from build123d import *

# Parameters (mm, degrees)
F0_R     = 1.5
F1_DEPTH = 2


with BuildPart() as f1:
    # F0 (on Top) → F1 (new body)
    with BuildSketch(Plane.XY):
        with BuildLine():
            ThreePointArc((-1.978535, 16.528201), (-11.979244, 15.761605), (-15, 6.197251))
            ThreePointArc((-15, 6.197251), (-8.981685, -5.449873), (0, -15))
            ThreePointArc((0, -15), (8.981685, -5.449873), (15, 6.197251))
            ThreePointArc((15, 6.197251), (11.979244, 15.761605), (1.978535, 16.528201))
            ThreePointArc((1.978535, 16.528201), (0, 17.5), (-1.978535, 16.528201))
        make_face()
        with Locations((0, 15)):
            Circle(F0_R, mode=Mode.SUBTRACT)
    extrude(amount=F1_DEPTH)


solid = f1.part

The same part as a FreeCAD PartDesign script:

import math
import FreeCAD as App
import Part
import Sketcher

V = App.Vector

doc = App.newDocument("Part")
body = doc.addObject("PartDesign::Body", "Body")

# Sketch on XY plane
sketch1 = body.newObject("Sketcher::SketchObject", "Sketch")
sketch1.AttachmentSupport = (doc.getObject("XY_Plane"), [""])
sketch1.MapMode = "FlatFace"
sketch1.addGeometry(Part.ArcOfCircle(Part.Circle(V(-6.4, 8.7, 0), V(0, 0, 1), 9), math.radians(60), math.radians(197)), False)
sketch1.addGeometry(Part.ArcOfCircle(Part.Circle(V(29.7, 21.9, 0), V(0, 0, 1), 47.3), math.radians(-161), math.radians(-129)), False)
sketch1.addGeometry(Part.ArcOfCircle(Part.Circle(V(-29.7, 21.9, 0), V(0, 0, 1), 47.3), math.radians(-51), math.radians(-19)), False)
sketch1.addGeometry(Part.ArcOfCircle(Part.Circle(V(6.4, 8.7, 0), V(0, 0, 1), 9), math.radians(-17), math.radians(120)), False)
sketch1.addGeometry(Part.ArcOfCircle(Part.Circle(V(0, 15, 0), V(0, 0, 1), 2.5), math.radians(38), math.radians(142)), False)
sketch1.addGeometry(Part.Circle(V(0, 15, 0), V(0, 0, 1), 1.5), False)
sketch1.addConstraint(Sketcher.Constraint("Coincident", 0, 2, 1, 1))
sketch1.addConstraint(Sketcher.Constraint("Coincident", 1, 2, 2, 1))
sketch1.addConstraint(Sketcher.Constraint("Coincident", 2, 2, 3, 1))
sketch1.addConstraint(Sketcher.Constraint("Coincident", 3, 2, 4, 1))
sketch1.addConstraint(Sketcher.Constraint("Coincident", 4, 2, 0, 1))
sketch1.addConstraint(Sketcher.Constraint("Coincident", 5, 3, 4, 3))
sketch1.addConstraint(Sketcher.Constraint("Equal", 1, 2))
sketch1.addConstraint(Sketcher.Constraint("Equal", 0, 3))
sketch1.addConstraint(Sketcher.Constraint("Symmetric", 1, 3, 2, 3, -2))
sketch1.addConstraint(Sketcher.Constraint("Symmetric", 0, 3, 3, 3, -2))
sketch1.addConstraint(Sketcher.Constraint("PointOnObject", 4, 3, -2))
sketch1.addConstraint(Sketcher.Constraint("Diameter", 5, 3.0))
sketch1.addConstraint(Sketcher.Constraint("Radius", 4, 2.5))
sketch1.addConstraint(Sketcher.Constraint("DistanceY", -1, 1, 4, 3, 15.0))
sketch1.addConstraint(Sketcher.Constraint("DistanceX", 0, 2, -1, 1, 15.0))
sketch1.addConstraint(Sketcher.Constraint("DistanceY", 1, 2, -1, 1, 15.0))
sketch1.addConstraint(Sketcher.Constraint("Radius", 0, 8.958049))
sketch1.addConstraint(Sketcher.Constraint("Radius", 1, 47.344953))
sketch1.addConstraint(Sketcher.Constraint("DistanceY", -1, 1, 3, 2, 16.528201))
sketch1.addConstraint(Sketcher.Constraint("DistanceX", -1, 1, 1, 3, 29.66561))
pad1 = body.newObject("PartDesign::Pad", "Pad")
pad1.Profile = sketch1
pad1.Length = 2

doc.recompute()
